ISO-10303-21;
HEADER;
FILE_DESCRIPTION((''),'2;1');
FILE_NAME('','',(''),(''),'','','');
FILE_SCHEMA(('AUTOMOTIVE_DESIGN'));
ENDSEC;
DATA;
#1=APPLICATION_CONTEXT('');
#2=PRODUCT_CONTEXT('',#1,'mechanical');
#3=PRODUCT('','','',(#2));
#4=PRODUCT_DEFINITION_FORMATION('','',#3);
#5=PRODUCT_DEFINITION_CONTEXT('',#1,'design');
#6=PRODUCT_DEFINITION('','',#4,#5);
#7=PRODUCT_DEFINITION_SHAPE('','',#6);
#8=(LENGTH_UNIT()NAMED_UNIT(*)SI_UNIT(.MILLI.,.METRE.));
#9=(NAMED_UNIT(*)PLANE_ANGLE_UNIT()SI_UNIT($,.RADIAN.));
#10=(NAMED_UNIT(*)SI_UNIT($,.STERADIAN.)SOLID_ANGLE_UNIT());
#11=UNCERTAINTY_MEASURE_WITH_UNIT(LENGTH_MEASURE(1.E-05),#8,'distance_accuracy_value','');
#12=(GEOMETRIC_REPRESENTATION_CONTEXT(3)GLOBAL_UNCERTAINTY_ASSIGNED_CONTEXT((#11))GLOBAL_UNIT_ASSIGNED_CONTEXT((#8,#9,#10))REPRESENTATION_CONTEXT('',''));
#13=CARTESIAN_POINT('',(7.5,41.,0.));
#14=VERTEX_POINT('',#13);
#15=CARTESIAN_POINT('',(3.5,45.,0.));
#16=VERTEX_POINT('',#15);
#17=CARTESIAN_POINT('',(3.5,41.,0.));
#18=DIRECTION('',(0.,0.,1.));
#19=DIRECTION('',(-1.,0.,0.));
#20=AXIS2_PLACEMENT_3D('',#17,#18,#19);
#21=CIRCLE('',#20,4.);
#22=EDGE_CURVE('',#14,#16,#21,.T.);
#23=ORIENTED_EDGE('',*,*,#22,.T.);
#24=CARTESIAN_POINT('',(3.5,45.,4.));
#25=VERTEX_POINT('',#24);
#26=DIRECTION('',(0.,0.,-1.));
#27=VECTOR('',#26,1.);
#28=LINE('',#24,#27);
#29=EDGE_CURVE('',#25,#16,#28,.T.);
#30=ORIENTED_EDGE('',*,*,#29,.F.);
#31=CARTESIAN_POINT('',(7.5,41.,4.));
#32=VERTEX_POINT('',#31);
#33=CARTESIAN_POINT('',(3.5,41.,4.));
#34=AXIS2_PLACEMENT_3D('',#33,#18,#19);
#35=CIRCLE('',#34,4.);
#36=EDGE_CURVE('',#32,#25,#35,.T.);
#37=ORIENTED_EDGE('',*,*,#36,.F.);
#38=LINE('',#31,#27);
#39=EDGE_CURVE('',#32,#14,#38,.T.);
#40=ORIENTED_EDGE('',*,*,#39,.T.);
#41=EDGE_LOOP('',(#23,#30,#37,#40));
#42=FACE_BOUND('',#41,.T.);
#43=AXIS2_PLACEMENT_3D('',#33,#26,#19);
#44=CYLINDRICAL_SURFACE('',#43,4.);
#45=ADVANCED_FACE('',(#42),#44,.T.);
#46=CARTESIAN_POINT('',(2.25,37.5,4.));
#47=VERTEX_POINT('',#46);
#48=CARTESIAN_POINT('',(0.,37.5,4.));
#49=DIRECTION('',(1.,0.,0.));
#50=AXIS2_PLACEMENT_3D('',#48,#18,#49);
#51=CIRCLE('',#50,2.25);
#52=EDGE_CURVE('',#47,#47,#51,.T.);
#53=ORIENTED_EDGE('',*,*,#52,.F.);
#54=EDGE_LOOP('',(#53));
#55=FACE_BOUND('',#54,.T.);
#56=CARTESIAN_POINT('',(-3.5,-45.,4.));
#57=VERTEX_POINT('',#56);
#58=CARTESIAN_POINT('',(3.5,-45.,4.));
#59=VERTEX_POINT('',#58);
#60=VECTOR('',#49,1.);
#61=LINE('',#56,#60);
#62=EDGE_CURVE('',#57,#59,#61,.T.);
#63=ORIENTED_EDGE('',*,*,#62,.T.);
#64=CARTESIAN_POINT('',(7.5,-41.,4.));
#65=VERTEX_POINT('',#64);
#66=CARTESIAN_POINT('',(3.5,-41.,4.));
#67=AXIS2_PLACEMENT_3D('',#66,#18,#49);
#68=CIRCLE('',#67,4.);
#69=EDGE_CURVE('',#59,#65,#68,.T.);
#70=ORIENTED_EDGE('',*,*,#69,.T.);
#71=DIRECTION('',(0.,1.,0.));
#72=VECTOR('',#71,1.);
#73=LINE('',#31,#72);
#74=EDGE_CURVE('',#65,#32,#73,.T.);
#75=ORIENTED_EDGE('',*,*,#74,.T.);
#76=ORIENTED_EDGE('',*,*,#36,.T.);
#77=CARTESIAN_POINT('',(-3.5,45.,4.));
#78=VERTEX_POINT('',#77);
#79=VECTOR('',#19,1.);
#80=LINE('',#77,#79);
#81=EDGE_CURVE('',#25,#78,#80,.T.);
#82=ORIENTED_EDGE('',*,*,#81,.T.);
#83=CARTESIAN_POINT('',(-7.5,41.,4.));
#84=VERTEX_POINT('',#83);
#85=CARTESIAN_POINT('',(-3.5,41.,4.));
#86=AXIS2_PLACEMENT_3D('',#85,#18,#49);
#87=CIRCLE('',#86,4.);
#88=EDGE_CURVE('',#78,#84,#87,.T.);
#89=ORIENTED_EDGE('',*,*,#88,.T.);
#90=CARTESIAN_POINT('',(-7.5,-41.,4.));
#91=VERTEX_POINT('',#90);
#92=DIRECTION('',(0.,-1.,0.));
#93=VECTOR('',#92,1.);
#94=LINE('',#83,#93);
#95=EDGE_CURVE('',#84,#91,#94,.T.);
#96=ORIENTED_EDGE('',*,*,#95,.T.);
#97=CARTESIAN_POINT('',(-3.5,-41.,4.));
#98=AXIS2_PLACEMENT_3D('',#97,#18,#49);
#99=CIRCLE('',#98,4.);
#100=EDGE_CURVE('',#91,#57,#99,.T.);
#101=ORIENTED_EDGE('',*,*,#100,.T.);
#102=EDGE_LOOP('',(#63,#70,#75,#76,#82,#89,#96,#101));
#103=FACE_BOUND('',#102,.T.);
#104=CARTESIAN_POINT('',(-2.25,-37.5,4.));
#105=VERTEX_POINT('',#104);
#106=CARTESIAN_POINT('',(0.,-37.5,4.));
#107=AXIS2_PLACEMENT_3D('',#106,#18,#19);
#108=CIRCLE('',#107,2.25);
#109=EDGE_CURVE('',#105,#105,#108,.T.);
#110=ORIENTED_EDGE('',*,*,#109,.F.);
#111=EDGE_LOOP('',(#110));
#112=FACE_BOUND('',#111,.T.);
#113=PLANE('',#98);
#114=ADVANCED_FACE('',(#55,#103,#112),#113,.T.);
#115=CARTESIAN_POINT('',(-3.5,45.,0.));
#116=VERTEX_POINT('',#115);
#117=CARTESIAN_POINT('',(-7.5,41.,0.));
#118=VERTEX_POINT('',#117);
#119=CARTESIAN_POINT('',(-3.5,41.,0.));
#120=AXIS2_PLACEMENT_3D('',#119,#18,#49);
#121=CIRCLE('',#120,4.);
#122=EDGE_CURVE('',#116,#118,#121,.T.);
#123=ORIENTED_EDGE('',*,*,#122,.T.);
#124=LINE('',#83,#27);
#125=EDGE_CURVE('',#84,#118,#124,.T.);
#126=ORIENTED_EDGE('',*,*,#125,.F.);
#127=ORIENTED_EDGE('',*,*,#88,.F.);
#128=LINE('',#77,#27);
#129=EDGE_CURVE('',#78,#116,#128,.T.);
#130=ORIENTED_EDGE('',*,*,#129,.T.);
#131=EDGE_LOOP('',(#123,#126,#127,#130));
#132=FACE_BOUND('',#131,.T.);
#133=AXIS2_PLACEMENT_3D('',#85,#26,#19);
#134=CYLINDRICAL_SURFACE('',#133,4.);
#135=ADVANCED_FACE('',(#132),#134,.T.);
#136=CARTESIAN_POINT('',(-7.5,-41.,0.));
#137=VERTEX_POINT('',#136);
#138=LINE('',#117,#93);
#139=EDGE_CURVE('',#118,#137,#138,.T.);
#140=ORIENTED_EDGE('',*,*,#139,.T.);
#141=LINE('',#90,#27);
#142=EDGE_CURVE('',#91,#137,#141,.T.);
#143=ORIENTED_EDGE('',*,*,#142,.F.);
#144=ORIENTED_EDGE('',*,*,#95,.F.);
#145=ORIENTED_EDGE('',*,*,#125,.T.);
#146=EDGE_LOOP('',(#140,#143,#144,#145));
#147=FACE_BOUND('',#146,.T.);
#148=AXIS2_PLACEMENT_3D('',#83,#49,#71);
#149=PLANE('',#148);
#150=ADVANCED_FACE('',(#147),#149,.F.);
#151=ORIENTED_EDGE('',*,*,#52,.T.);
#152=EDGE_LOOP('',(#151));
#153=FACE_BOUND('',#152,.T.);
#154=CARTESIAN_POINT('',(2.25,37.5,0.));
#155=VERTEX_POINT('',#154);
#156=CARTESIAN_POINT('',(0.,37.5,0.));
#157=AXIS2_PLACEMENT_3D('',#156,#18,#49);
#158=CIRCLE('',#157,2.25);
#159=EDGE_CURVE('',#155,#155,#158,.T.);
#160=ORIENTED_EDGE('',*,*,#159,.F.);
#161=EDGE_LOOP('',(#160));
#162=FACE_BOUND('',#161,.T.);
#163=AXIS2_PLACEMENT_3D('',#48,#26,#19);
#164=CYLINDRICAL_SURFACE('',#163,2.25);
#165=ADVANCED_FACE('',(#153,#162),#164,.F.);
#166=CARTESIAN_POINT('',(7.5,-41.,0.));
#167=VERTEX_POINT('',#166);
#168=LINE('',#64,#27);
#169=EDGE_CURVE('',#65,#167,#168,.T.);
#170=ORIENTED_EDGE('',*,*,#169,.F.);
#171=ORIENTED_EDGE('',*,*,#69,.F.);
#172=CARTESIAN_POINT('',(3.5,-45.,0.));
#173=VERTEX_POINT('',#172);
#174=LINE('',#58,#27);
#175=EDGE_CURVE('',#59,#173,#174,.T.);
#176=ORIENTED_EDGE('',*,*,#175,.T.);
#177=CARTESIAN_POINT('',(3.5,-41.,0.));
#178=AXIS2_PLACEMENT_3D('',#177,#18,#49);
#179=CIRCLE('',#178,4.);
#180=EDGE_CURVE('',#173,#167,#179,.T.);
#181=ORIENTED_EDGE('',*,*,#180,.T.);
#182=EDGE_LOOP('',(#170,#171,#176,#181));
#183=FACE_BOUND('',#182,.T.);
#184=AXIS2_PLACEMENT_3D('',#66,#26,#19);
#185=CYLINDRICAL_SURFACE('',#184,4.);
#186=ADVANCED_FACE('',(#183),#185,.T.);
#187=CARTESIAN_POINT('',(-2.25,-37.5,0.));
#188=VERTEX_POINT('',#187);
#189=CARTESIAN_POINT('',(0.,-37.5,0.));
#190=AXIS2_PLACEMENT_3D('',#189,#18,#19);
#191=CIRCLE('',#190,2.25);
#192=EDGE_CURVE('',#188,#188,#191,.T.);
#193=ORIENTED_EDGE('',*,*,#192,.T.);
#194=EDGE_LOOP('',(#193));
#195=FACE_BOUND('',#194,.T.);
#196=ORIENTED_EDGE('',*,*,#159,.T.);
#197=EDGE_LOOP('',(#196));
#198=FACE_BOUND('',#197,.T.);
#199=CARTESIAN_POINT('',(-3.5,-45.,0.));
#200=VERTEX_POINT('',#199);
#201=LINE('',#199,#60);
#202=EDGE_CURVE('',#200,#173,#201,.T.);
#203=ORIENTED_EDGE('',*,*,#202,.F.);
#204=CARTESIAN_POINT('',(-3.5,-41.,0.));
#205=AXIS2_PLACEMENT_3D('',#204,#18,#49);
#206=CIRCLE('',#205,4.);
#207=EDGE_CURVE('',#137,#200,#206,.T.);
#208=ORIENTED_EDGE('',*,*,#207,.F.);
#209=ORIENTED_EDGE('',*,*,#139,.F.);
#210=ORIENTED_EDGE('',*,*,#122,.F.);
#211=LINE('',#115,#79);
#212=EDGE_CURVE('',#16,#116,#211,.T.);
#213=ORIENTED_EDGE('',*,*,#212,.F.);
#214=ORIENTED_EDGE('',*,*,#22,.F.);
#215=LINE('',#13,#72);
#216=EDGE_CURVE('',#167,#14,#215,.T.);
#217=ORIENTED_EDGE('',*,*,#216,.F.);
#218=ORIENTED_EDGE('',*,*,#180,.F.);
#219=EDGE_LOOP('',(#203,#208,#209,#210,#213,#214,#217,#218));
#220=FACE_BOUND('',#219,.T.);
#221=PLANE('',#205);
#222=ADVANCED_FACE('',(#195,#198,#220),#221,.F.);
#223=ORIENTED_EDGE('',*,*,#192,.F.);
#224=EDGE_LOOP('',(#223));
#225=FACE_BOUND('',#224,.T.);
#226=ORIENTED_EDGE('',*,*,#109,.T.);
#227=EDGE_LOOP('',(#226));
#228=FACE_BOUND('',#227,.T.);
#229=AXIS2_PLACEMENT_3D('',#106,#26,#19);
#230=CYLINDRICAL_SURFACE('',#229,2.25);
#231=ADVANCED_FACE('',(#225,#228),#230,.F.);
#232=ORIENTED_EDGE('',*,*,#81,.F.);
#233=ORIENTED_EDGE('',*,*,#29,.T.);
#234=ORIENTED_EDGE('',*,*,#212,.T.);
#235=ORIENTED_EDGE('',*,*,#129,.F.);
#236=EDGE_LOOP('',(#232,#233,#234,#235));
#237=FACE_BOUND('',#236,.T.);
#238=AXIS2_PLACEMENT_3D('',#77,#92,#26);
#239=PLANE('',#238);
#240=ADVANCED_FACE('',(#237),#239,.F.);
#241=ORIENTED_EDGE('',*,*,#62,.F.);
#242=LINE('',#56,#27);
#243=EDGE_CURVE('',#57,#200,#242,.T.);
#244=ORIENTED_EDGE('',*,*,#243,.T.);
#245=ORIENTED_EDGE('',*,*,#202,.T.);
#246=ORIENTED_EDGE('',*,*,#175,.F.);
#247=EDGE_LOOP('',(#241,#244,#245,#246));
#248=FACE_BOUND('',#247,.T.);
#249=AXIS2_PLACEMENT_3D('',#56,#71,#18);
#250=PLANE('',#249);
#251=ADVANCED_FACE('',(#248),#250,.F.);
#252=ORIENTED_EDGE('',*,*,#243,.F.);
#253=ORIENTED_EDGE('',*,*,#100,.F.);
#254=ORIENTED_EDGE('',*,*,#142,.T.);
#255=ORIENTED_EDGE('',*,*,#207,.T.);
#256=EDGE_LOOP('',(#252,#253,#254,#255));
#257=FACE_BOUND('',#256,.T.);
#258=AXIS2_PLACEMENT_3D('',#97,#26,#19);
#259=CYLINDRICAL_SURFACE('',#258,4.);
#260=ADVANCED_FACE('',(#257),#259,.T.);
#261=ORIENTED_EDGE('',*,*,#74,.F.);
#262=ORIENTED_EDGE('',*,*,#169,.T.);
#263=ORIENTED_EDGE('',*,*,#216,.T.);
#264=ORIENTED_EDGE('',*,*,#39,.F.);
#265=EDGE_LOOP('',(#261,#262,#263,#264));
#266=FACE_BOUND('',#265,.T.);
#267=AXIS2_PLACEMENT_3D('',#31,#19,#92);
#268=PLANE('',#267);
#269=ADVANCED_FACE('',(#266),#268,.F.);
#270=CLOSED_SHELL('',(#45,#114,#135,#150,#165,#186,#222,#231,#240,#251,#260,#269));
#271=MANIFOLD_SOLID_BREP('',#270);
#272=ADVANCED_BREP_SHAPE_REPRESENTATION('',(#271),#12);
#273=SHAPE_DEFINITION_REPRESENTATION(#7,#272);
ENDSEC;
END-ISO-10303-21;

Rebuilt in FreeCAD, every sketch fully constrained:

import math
import FreeCAD as App
import Part
import Sketcher
from FreeCAD import Vector

doc = App.newDocument("Part")
body = doc.addObject("PartDesign::Body", "Body")

sketch1 = body.newObject("Sketcher::SketchObject", "Sketch")
sketch1.AttachmentSupport = (doc.getObject("XY_Plane"), [""])
sketch1.MapMode = "FlatFace"
sketch1.addGeometry(Part.LineSegment(Vector(3.5, 45, 0), Vector(-3.5, 45, 0)), False)
sketch1.addGeometry(Part.ArcOfCircle(Part.Circle(Vector(-3.5, 41, 0), Vector(0, 0, 1), 4), math.radians(90), math.radians(180)), False)
sketch1.addGeometry(Part.LineSegment(Vector(-7.5, 41, 0), Vector(-7.5, -41, 0)), False)
sketch1.addGeometry(Part.ArcOfCircle(Part.Circle(Vector(-3.5, -41, 0), Vector(0, 0, 1), 4), math.radians(180), math.radians(270)), False)
sketch1.addGeometry(Part.LineSegment(Vector(-3.5, -45, 0), Vector(3.5, -45, 0)), False)
sketch1.addGeometry(Part.ArcOfCircle(Part.Circle(Vector(3.5, -41, 0), Vector(0, 0, 1), 4), math.radians(-90), math.radians(0)), False)
sketch1.addGeometry(Part.LineSegment(Vector(7.5, -41, 0), Vector(7.5, 41, 0)), False)
sketch1.addGeometry(Part.ArcOfCircle(Part.Circle(Vector(3.5, 41, 0), Vector(0, 0, 1), 4), math.radians(0), math.radians(90)), False)
sketch1.addGeometry(Part.Circle(Vector(0, -37.5, 0), Vector(0, 0, 1), 2.2), False)
sketch1.addGeometry(Part.Circle(Vector(0, 37.5, 0), Vector(0, 0, 1), 2.2), False)
sketch1.addConstraint(Sketcher.Constraint("Tangent", 0, 2, 1, 1))
sketch1.addConstraint(Sketcher.Constraint("Tangent", 1, 2, 2, 1))
sketch1.addConstraint(Sketcher.Constraint("Tangent", 2, 2, 3, 1))
sketch1.addConstraint(Sketcher.Constraint("Tangent", 3, 2, 4, 1))
sketch1.addConstraint(Sketcher.Constraint("Tangent", 4, 2, 5, 1))
sketch1.addConstraint(Sketcher.Constraint("Tangent", 5, 2, 6, 1))
sketch1.addConstraint(Sketcher.Constraint("Tangent", 6, 2, 7, 1))
sketch1.addConstraint(Sketcher.Constraint("Tangent", 7, 2, 0, 1))
sketch1.addConstraint(Sketcher.Constraint("Horizontal", 0))
sketch1.addConstraint(Sketcher.Constraint("Vertical", 2))
sketch1.addConstraint(Sketcher.Constraint("Horizontal", 4))
sketch1.addConstraint(Sketcher.Constraint("Vertical", 6))
sketch1.addConstraint(Sketcher.Constraint("Equal", 1, 3))
sketch1.addConstraint(Sketcher.Constraint("Equal", 3, 5))
sketch1.addConstraint(Sketcher.Constraint("Equal", 5, 7))
sketch1.addConstraint(Sketcher.Constraint("Equal", 8, 9))
sketch1.addConstraint(Sketcher.Constraint("Symmetric", 1, 3, 5, 3, -1, 1))
sketch1.addConstraint(Sketcher.Constraint("Symmetric", 8, 3, 9, 3, -1, 1))
sketch1.addConstraint(Sketcher.Constraint("PointOnObject", 8, 3, -2))
sketch1.addConstraint(Sketcher.Constraint("Radius", 1, 4.0))
sketch1.addConstraint(Sketcher.Constraint("Diameter", 8, 4.5))
sketch1.addConstraint(Sketcher.Constraint("DistanceX", 0, 2, 0, 1, 7.0))
sketch1.addConstraint(Sketcher.Constraint("DistanceY", 2, 2, 2, 1, 82.0))
sketch1.addConstraint(Sketcher.Constraint("DistanceY", 8, 3, 9, 3, 75.0))
pad1 = body.newObject("PartDesign::Pad", "Pad")
pad1.Profile = sketch1
pad1.Length = 4

doc.recompute()
